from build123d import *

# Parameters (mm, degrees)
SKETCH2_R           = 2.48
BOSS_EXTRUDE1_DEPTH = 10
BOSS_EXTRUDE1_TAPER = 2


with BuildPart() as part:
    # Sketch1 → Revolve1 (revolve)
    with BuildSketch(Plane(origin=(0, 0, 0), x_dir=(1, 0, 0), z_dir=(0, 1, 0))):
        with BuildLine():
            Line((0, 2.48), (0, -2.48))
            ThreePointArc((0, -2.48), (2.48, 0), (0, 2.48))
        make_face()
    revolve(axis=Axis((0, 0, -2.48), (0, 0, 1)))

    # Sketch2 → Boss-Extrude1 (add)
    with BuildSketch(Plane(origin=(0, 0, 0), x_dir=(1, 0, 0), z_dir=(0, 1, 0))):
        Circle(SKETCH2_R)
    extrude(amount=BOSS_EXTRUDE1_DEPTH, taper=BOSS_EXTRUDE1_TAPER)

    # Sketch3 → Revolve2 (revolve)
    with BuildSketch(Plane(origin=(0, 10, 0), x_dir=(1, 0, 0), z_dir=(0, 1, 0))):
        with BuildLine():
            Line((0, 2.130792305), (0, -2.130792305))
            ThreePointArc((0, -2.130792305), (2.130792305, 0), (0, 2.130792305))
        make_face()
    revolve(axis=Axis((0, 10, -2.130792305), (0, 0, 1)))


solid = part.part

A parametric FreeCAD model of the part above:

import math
import FreeCAD as App
import Part
import Sketcher

V = App.Vector

doc = App.newDocument("Part")
body = doc.addObject("PartDesign::Body", "Body")

# Sketch on XZ plane
sketch1 = doc.addObject("Sketcher::SketchObject", "Sketch")
body.addObject(sketch1)
sketch1.AttachmentSupport = (doc.XZ_Plane, [""])
sketch1.MapMode = "FlatFace"
sketch1.addGeometry([
    Part.LineSegment(V(0, -2.48, 0), V(0, 2.48, 0)),
    Part.ArcOfCircle(Part.Circle(V(0, 0, 0), V(0, 0, 1), 2.48), math.radians(-90), math.radians(90)),
], False)
sketch1.addConstraint([
    Sketcher.Constraint("Coincident", 0, 1, 1, 1),
    Sketcher.Constraint("Coincident", 1, 2, 0, 2),
    Sketcher.Constraint("Vertical", 0),
    Sketcher.Constraint("Coincident", 1, 3, -1, 1),
    Sketcher.Constraint("PointOnObject", 0, 1, -2),
    Sketcher.Constraint("Radius", 1, 2.48),
])
revolution = doc.addObject("PartDesign::Revolution", "Revolution")
body.addObject(revolution)
revolution.Profile = sketch1
revolution.ReferenceAxis = (sketch1, ["V_Axis"])
revolution.Angle = 360

# Sketch on XZ plane
sketch2 = doc.addObject("Sketcher::SketchObject", "Sketch001")
body.addObject(sketch2)
sketch2.AttachmentSupport = (doc.XZ_Plane, [""])
sketch2.MapMode = "FlatFace"
sketch2.addGeometry(Part.Circle(V(0, 0, 0), V(0, 0, 1), 2.48), False)
sketch2.addConstraint([
    Sketcher.Constraint("Coincident", 0, 3, -1, 1),
    Sketcher.Constraint("Diameter", 0, 4.96),
])
pad1 = doc.addObject("PartDesign::Pad", "Pad")
body.addObject(pad1)
pad1.Profile = sketch2
pad1.Length = 10
pad1.Reversed = True
pad1.TaperAngle = -2

# Sketch on XZ plane
sketch3 = doc.addObject("Sketcher::SketchObject", "Sketch002")
body.addObject(sketch3)
sketch3.AttachmentSupport = (doc.XZ_Plane, [""])
sketch3.MapMode = "FlatFace"
sketch3.AttachmentOffset = App.Placement(V(0, 0, -10), App.Rotation())
sketch3.addGeometry([
    Part.LineSegment(V(0, -2.130792, 0), V(0, 2.130792, 0)),
    Part.ArcOfCircle(Part.Circle(V(0, 0, 0), V(0, 0, 1), 2.130792), math.radians(-90), math.radians(90)),
], False)
sketch3.addConstraint([
    Sketcher.Constraint("Coincident", 0, 1, 1, 1),
    Sketcher.Constraint("Coincident", 1, 2, 0, 2),
    Sketcher.Constraint("Vertical", 0),
    Sketcher.Constraint("Coincident", 1, 3, -1, 1),
    Sketcher.Constraint("PointOnObject", 0, 1, -2),
    Sketcher.Constraint("Radius", 1, 2.130792),
])
revolution2 = doc.addObject("PartDesign::Revolution", "Revolution001")
body.addObject(revolution2)
revolution2.Profile = sketch3
revolution2.ReferenceAxis = (sketch3, ["V_Axis"])
revolution2.Angle = 360

doc.recompute()
